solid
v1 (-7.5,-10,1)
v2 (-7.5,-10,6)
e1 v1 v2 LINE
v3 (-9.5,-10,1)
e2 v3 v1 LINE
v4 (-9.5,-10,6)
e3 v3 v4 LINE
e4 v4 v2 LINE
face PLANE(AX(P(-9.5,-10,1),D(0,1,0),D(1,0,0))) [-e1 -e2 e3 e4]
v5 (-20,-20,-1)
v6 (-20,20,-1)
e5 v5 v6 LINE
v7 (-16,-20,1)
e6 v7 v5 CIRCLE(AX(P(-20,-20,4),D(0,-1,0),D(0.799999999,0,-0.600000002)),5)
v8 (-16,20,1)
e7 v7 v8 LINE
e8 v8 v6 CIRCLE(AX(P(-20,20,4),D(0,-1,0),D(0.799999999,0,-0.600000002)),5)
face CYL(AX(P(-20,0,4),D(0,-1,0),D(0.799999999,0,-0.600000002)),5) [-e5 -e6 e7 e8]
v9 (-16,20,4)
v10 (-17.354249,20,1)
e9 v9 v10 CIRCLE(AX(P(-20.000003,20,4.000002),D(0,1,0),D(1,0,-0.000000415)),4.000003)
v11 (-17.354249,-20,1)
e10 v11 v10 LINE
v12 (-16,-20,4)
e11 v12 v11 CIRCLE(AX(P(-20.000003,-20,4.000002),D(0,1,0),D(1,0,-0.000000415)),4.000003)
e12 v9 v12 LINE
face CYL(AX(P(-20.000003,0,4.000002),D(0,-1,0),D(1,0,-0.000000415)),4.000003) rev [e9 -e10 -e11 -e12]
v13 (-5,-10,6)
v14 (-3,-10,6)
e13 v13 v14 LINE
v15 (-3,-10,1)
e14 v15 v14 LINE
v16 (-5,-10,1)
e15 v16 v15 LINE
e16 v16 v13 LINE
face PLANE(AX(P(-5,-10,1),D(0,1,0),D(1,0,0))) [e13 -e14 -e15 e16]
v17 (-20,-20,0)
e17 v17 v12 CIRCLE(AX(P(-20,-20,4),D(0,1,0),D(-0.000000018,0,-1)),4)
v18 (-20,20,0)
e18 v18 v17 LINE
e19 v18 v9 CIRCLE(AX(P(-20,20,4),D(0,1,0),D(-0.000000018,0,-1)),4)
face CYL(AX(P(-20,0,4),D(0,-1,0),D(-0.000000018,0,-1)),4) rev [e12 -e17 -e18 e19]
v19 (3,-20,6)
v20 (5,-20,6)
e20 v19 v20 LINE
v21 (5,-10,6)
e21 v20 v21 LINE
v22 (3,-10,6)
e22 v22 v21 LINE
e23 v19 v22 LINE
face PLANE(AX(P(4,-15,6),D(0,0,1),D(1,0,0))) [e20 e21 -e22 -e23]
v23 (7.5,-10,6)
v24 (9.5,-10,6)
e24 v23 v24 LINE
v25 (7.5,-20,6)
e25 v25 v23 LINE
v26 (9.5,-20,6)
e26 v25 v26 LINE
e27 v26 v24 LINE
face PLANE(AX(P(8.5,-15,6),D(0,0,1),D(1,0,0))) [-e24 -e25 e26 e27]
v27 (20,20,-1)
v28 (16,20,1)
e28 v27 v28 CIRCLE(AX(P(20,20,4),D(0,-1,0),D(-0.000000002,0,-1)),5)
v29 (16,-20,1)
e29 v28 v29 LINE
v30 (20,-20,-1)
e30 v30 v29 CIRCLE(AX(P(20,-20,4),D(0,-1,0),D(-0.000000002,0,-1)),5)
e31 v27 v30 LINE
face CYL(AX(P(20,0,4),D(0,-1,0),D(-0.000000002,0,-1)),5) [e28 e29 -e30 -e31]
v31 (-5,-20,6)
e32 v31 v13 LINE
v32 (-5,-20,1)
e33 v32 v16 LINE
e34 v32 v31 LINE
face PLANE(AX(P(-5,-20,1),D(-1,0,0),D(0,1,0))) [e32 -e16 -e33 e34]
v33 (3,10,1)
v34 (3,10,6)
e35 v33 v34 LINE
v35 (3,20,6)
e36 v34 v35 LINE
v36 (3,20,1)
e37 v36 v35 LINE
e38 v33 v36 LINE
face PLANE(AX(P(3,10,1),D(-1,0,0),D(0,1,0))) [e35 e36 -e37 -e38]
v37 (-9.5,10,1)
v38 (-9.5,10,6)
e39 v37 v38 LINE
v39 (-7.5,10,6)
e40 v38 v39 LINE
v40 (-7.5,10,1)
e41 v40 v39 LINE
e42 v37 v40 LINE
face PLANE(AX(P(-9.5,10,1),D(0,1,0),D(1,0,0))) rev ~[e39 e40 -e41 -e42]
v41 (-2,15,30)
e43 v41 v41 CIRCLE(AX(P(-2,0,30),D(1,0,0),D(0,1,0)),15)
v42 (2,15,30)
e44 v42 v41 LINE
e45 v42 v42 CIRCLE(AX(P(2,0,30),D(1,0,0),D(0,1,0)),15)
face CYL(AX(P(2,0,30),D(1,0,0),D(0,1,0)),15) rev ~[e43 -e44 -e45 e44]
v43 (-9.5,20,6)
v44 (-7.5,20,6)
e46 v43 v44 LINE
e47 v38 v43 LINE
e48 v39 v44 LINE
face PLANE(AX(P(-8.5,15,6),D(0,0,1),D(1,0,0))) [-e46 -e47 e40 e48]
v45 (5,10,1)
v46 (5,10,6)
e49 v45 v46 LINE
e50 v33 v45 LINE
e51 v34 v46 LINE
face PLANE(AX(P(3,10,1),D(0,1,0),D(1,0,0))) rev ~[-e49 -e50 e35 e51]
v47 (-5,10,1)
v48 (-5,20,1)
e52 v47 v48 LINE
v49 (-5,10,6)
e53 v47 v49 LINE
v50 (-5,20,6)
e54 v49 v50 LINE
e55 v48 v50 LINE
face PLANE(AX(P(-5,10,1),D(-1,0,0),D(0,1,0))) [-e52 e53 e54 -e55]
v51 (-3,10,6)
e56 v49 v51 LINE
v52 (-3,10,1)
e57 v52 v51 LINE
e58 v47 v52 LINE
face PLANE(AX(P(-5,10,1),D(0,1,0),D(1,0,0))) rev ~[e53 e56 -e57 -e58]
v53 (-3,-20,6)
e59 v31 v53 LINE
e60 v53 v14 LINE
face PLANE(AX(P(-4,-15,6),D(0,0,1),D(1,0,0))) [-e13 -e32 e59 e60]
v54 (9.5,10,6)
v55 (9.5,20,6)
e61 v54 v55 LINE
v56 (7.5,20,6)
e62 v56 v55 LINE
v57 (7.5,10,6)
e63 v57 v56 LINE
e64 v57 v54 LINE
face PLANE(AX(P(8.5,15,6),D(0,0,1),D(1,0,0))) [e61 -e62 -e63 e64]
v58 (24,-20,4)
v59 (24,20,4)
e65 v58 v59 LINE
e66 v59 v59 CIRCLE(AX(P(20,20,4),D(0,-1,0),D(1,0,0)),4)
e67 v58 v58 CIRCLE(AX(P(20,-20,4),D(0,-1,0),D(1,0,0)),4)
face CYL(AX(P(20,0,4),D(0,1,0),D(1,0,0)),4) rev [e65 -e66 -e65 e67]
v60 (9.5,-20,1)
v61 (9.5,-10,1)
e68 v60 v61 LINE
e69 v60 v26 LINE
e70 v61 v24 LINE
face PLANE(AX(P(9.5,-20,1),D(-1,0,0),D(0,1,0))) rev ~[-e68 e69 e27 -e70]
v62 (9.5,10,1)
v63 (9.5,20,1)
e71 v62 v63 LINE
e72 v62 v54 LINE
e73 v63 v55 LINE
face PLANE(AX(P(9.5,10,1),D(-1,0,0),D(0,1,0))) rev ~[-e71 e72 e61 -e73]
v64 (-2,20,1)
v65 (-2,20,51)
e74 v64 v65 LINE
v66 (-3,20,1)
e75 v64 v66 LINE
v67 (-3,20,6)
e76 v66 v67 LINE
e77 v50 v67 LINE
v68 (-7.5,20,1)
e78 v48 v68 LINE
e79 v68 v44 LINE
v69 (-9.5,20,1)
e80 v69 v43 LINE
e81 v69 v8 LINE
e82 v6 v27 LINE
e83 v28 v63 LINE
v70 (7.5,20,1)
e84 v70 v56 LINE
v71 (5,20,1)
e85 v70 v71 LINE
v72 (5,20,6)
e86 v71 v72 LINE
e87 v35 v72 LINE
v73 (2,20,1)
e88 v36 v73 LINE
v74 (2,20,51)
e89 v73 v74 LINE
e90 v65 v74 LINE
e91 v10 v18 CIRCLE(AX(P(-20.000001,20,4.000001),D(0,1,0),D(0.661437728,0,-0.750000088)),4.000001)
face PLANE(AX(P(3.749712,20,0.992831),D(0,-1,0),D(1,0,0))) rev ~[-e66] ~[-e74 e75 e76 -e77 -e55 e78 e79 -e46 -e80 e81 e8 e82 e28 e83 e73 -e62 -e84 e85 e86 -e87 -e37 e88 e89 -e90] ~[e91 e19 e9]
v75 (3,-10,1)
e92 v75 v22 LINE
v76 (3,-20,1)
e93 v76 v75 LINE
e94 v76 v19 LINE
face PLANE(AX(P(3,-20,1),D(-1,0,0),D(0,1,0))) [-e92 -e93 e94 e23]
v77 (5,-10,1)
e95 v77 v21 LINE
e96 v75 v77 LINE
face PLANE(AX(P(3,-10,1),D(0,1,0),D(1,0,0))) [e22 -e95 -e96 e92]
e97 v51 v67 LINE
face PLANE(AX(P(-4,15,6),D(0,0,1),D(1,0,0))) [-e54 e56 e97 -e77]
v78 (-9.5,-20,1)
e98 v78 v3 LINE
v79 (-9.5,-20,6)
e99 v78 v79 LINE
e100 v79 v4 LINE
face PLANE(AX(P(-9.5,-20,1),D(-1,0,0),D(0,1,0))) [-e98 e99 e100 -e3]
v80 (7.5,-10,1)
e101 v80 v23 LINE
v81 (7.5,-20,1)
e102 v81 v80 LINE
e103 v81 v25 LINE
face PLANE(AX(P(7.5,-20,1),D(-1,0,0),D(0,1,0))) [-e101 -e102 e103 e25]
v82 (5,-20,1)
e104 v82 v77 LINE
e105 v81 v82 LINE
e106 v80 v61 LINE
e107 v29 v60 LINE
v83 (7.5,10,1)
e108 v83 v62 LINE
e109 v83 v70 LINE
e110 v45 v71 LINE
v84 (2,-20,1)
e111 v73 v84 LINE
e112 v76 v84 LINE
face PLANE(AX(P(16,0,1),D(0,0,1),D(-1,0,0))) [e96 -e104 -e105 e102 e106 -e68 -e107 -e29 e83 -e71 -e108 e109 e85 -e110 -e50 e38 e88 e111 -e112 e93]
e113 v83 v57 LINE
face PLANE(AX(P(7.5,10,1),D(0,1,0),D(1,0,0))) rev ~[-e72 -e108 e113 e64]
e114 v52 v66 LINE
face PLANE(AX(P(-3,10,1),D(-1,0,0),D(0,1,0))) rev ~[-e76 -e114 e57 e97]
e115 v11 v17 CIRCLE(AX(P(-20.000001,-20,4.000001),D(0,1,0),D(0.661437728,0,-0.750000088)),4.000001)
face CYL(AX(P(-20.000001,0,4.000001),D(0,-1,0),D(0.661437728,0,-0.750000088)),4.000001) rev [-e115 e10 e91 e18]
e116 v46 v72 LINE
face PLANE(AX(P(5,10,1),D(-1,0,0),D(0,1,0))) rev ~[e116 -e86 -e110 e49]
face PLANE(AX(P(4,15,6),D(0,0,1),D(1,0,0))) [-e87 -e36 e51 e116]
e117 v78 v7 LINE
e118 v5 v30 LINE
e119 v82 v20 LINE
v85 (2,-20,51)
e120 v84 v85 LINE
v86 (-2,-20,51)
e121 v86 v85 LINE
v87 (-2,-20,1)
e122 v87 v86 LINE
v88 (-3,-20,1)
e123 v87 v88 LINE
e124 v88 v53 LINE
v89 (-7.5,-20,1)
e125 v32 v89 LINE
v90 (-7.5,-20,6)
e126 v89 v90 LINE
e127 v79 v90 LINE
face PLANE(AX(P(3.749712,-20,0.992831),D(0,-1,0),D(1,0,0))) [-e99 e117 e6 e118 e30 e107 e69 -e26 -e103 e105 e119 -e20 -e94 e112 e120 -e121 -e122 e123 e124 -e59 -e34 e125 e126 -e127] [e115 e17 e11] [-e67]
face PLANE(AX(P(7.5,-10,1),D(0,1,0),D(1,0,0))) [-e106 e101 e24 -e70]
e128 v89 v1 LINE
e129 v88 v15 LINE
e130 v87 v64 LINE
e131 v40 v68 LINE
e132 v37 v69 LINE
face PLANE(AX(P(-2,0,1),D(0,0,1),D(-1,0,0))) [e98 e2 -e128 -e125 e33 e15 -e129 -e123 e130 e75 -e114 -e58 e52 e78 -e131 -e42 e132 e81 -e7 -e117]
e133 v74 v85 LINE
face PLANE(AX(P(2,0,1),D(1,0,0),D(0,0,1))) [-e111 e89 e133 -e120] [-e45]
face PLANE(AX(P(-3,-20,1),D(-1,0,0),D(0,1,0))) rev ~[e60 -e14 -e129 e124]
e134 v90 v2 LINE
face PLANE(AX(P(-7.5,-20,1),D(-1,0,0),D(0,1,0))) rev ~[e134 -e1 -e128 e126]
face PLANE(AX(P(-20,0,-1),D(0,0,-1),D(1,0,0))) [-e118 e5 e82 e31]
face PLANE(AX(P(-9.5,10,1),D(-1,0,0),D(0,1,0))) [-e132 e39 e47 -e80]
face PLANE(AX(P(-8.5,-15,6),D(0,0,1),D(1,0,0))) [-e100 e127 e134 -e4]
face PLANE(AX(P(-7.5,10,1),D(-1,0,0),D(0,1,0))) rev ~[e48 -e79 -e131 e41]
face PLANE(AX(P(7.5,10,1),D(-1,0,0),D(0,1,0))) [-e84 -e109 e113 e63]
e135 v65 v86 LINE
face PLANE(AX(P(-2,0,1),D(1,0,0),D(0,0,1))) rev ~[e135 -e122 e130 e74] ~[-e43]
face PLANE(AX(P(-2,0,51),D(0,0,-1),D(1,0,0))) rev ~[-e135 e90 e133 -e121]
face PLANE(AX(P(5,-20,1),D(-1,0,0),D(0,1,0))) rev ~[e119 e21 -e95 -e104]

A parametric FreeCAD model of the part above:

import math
import FreeCAD as App
import Part
import Sketcher
from FreeCAD import Vector


def add_polygon(sketch, points):
    """Adds a closed chain of lines whose ends are joined by coincident constraints."""
    first, n = sketch.GeometryCount, len(points)
    for a, b in zip(points, points[1:] + points[:1]):
        sketch.addGeometry(Part.LineSegment(App.Vector(*a, 0), App.Vector(*b, 0)), False)
    for i in range(n):
        sketch.addConstraint(Sketcher.Constraint("Coincident", first + i, 2, first + (i + 1) % n, 1))

doc = App.newDocument("Part")
params = doc.addObject("Spreadsheet::Sheet", "Params")
for row, (alias, value) in enumerate([
    ("sketch1_diameter", "8 mm"),
    ("sketch1_radius", "5 mm"),
    ("sketch1_width", "40 mm"),
    ("sketch1_width2", "14 mm"),
    ("sketch1_height", "50 mm"),
    ("pad1_length", "40 mm"),
    ("sketch2_width", "2 mm"),
    ("sketch2_height", "10 mm"),
    ("pad2_length", "5 mm"),
    ("sketch3_diameter", "30 mm"),
    ("pocket1_length", "25 mm"),
    ("sketch4_width", "2 mm"),
    ("sketch4_height", "10 mm"),
    ("pad3_length", "5 mm"),
], start=1):
    params.set(f"A{row}", alias)
    params.set(f"B{row}", "=" + value)
    params.setAlias(f"B{row}", alias)

body = doc.addObject("PartDesign::Body", "Body")

# Sketch on XZ plane
sketch1 = body.newObject("Sketcher::SketchObject", "Sketch")
sketch1.AttachmentSupport = (doc.getObject("XZ_Plane"), [""])
sketch1.MapMode = "FlatFace"
sketch1.addGeometry([
    Part.LineSegment(Vector(-20, -1, 0), Vector(20, -1, 0)),  # 0
    Part.ArcOfCircle(Part.Circle(Vector(20, 4, 0), Vector(0, 0, 1), 5), math.radians(-90), math.radians(217)),  # 1
    Part.LineSegment(Vector(16, 1, 0), Vector(2, 1, 0)),  # 2
    Part.LineSegment(Vector(2, 1, 0), Vector(2, 51, 0)),  # 3
    Part.LineSegment(Vector(2, 51, 0), Vector(-2, 51, 0)),  # 4
    Part.LineSegment(Vector(-2, 51, 0), Vector(-2, 1, 0)),  # 5
    Part.LineSegment(Vector(-2, 1, 0), Vector(-16, 1, 0)),  # 6
    Part.ArcOfCircle(Part.Circle(Vector(-20, 4, 0), Vector(0, 0, 1), 5), math.radians(-37), math.radians(270)),  # 7
    Part.ArcOfCircle(Part.Circle(Vector(-20, 4, 0), Vector(0, 0, 1), 4), math.radians(-90), math.radians(-49)),  # 8
    Part.ArcOfCircle(Part.Circle(Vector(-20, 4, 0), Vector(0, 0, 1), 4), math.radians(0), math.radians(270)),  # 9
    Part.ArcOfCircle(Part.Circle(Vector(-20, 4, 0), Vector(0, 0, 1), 4), math.radians(-49), math.radians(0)),  # 10
    Part.Circle(Vector(20, 4, 0), Vector(0, 0, 1), 4),  # 11
], False)
sketch1.addConstraint([
    Sketcher.Constraint("Tangent", 0, 2, 1, 1),
    Sketcher.Constraint("Coincident", 1, 2, 2, 1),
    Sketcher.Constraint("Coincident", 2, 2, 3, 1),
    Sketcher.Constraint("Coincident", 3, 2, 4, 1),
    Sketcher.Constraint("Coincident", 4, 2, 5, 1),
    Sketcher.Constraint("Coincident", 5, 2, 6, 1),
    Sketcher.Constraint("Coincident", 6, 2, 7, 1),
    Sketcher.Constraint("Tangent", 7, 2, 0, 1),
    Sketcher.Constraint("Tangent", 8, 1, 9, 2),
    Sketcher.Constraint("Tangent", 9, 1, 10, 2),
    Sketcher.Constraint("Tangent", 10, 1, 8, 2),
    Sketcher.Constraint("Horizontal", 0),
    Sketcher.Constraint("Horizontal", 2),
    Sketcher.Constraint("Vertical", 3),
    Sketcher.Constraint("Horizontal", 4),
    Sketcher.Constraint("Vertical", 5),
    Sketcher.Constraint("Horizontal", 6),
    Sketcher.Constraint("Coincident", 8, 3, 7, 3),
    Sketcher.Constraint("Coincident", 11, 3, 1, 3),
    Sketcher.Constraint("Equal", 1, 7),
    Sketcher.Constraint("Equal", 9, 11),
    Sketcher.Constraint("Symmetric", 2, 2, 5, 2, -2),
    Sketcher.Constraint("PointOnObject", 8, 1, -1),
    Sketcher.Constraint("Horizontal", 11, 3, 9, 1),
    Sketcher.Constraint("Horizontal", 6, 2, 10, 1),
    Sketcher.Constraint("Vertical", 7, 2, 8, 1),
    Sketcher.Constraint("Vertical", 6, 2, 9, 1),
    Sketcher.Constraint("Equal", 2, 6),
    Sketcher.Constraint("Diameter", 11, 8.0),
    Sketcher.Constraint("Radius", 1, 5.0),
    Sketcher.Constraint("DistanceX", 0, 1, 0, 2, 40.0),
    Sketcher.Constraint("DistanceX", 2, 2, 2, 1, 14.0),
    Sketcher.Constraint("DistanceY", 3, 1, 3, 2, 50.0),
])
sketch1.setExpression("Constraints[28]", "Params.sketch1_diameter")
sketch1.setExpression("Constraints[29]", "Params.sketch1_radius")
sketch1.setExpression("Constraints[30]", "Params.sketch1_width")
sketch1.setExpression("Constraints[31]", "Params.sketch1_width2")
sketch1.setExpression("Constraints[32]", "Params.sketch1_height")
pad1 = body.newObject("PartDesign::Pad", "Pad")
pad1.Profile = sketch1
pad1.setExpression("Length", "Params.pad1_length")
pad1.Midplane = True

# Sketch on XY plane
sketch2 = body.newObject("Sketcher::SketchObject", "Sketch001")
sketch2.AttachmentSupport = (doc.getObject("XY_Plane"), [""])
sketch2.MapMode = "FlatFace"
sketch2.AttachmentOffset = App.Placement(Vector(0, 0, 1), App.Rotation())
add_polygon(sketch2, [(7.5, -10), (7.5, -20), (9.5, -20), (9.5, -10)])  # lines 0-3
add_polygon(sketch2, [(3, -10), (3, -20), (5, -20), (5, -10)])  # lines 4-7
add_polygon(sketch2, [(-9.5, -10), (-9.5, -20), (-7.5, -20), (-7.5, -10)])  # lines 8-11
add_polygon(sketch2, [(-5, -10), (-5, -20), (-3, -20), (-3, -10)])  # lines 12-15
add_polygon(sketch2, [(7.5, 20), (7.5, 10), (9.5, 10), (9.5, 20)])  # lines 16-19
add_polygon(sketch2, [(-9.5, 20), (-9.5, 10), (-7.5, 10), (-7.5, 20)])  # lines 20-23
add_polygon(sketch2, [(-5, 20), (-5, 10), (-3, 10), (-3, 20)])  # lines 24-27
add_polygon(sketch2, [(3, 20), (3, 10), (5, 10), (5, 20)])  # lines 28-31
sketch2.addConstraint([
    Sketcher.Constraint("Vertical", 0),
    Sketcher.Constraint("Horizontal", 1),
    Sketcher.Constraint("Vertical", 2),
    Sketcher.Constraint("Horizontal", 3),
    Sketcher.Constraint("Vertical", 4),
    Sketcher.Constraint("Horizontal", 5),
    Sketcher.Constraint("Vertical", 6),
    Sketcher.Constraint("Horizontal", 7),
    Sketcher.Constraint("Vertical", 8),
    Sketcher.Constraint("Horizontal", 9),
    Sketcher.Constraint("Vertical", 10),
    Sketcher.Constraint("Horizontal", 11),
    Sketcher.Constraint("Vertical", 12),
    Sketcher.Constraint("Horizontal", 13),
    Sketcher.Constraint("Vertical", 14),
    Sketcher.Constraint("Horizontal", 15),
    Sketcher.Constraint("Vertical", 16),
    Sketcher.Constraint("Horizontal", 17),
    Sketcher.Constraint("Vertical", 18),
    Sketcher.Constraint("Horizontal", 19),
    Sketcher.Constraint("Vertical", 20),
    Sketcher.Constraint("Horizontal", 21),
    Sketcher.Constraint("Vertical", 22),
    Sketcher.Constraint("Horizontal", 23),
    Sketcher.Constraint("Vertical", 24),
    Sketcher.Constraint("Horizontal", 25),
    Sketcher.Constraint("Vertical", 26),
    Sketcher.Constraint("Horizontal", 27),
    Sketcher.Constraint("Vertical", 28),
    Sketcher.Constraint("Horizontal", 29),
    Sketcher.Constraint("Vertical", 30),
    Sketcher.Constraint("Horizontal", 31),
    Sketcher.Constraint("Symmetric", 10, 2, 16, 2, -1, 1),
    Sketcher.Constraint("Symmetric", 8, 2, 18, 2, -1, 1),
    Sketcher.Constraint("Symmetric", 2, 2, 20, 2, -1, 1),
    Sketcher.Constraint("Symmetric", 0, 2, 22, 2, -1, 1),
    Sketcher.Constraint("Symmetric", 6, 2, 24, 2, -1, 1),
    Sketcher.Constraint("Symmetric", 4, 2, 26, 2, -1, 1),
    Sketcher.Constraint("Symmetric", 14, 2, 28, 2, -1, 1),
    Sketcher.Constraint("Symmetric", 12, 2, 30, 2, -1, 1),
    Sketcher.Constraint("Symmetric", 1, 2, 8, 2, -2),
    Sketcher.Constraint("Symmetric", 3, 2, 10, 2, -2),
    Sketcher.Constraint("Symmetric", 5, 2, 12, 2, -2),
    Sketcher.Constraint("Symmetric", 7, 2, 14, 2, -2),
    Sketcher.Constraint("Horizontal", 1, 2, 4, 2),
    Sketcher.Constraint("Horizontal", 3, 2, 6, 2),
    Sketcher.Constraint("Equal", 3, 5),
    Sketcher.Constraint("DistanceX", 1, 1, 1, 2, 2.0),
    Sketcher.Constraint("DistanceY", 0, 2, 0, 1, 10.0),
    Sketcher.Constraint("DistanceY", 0, 2, -1, 1, 20.0),
    Sketcher.Constraint("DistanceX", -1, 1, 4, 2, 3.0),
    Sketcher.Constraint("DistanceX", 8, 2, 0, 2, 17.0),
])
sketch2.setExpression("Constraints[79]", "Params.sketch2_width")
sketch2.setExpression("Constraints[80]", "Params.sketch2_height")
pad2 = body.newObject("PartDesign::Pad", "Pad001")
pad2.Profile = sketch2
pad2.setExpression("Length", "Params.pad2_length")

# Sketch on YZ plane
sketch3 = body.newObject("Sketcher::SketchObject", "Sketch002")
sketch3.AttachmentSupport = (doc.getObject("YZ_Plane"), [""])
sketch3.MapMode = "FlatFace"
sketch3.AttachmentOffset = App.Placement(Vector(0, 0, 2), App.Rotation())
sketch3.addGeometry(Part.Circle(Vector(0, 30, 0), Vector(0, 0, 1), 15), False)
sketch3.addConstraint([
    Sketcher.Constraint("PointOnObject", 0, 3, -2),
    Sketcher.Constraint("Diameter", 0, 30.0),
    Sketcher.Constraint("DistanceY", -1, 1, 0, 3, 30.0),
])
sketch3.setExpression("Constraints[1]", "Params.sketch3_diameter")
pocket1 = body.newObject("PartDesign::Pocket", "Pocket")
pocket1.Profile = sketch3
pocket1.setExpression("Length", "Params.pocket1_length")

# Sketch on XY plane
sketch4 = body.newObject("Sketcher::SketchObject", "Sketch003")
sketch4.AttachmentSupport = (doc.getObject("XY_Plane"), [""])
sketch4.MapMode = "FlatFace"
sketch4.AttachmentOffset = App.Placement(Vector(0, 0, 1), App.Rotation())
add_polygon(sketch4, [(7.5, -10), (7.5, -20), (9.5, -20), (9.5, -10)])  # lines 0-3
add_polygon(sketch4, [(3, -10), (3, -20), (5, -20), (5, -10)])  # lines 4-7
add_polygon(sketch4, [(-9.5, -10), (-9.5, -20), (-7.5, -20), (-7.5, -10)])  # lines 8-11
add_polygon(sketch4, [(-5, -10), (-5, -20), (-3, -20), (-3, -10)])  # lines 12-15
add_polygon(sketch4, [(7.5, 20), (7.5, 10), (9.5, 10), (9.5, 20)])  # lines 16-19
add_polygon(sketch4, [(-9.5, 20), (-9.5, 10), (-7.5, 10), (-7.5, 20)])  # lines 20-23
add_polygon(sketch4, [(-5, 20), (-5, 10), (-3, 10), (-3, 20)])  # lines 24-27
add_polygon(sketch4, [(3, 20), (3, 10), (5, 10), (5, 20)])  # lines 28-31
sketch4.addConstraint([
    Sketcher.Constraint("Vertical", 0),
    Sketcher.Constraint("Horizontal", 1),
    Sketcher.Constraint("Vertical", 2),
    Sketcher.Constraint("Horizontal", 3),
    Sketcher.Constraint("Vertical", 4),
    Sketcher.Constraint("Horizontal", 5),
    Sketcher.Constraint("Vertical", 6),
    Sketcher.Constraint("Horizontal", 7),
    Sketcher.Constraint("Vertical", 8),
    Sketcher.Constraint("Horizontal", 9),
    Sketcher.Constraint("Vertical", 10),
    Sketcher.Constraint("Horizontal", 11),
    Sketcher.Constraint("Vertical", 12),
    Sketcher.Constraint("Horizontal", 13),
    Sketcher.Constraint("Vertical", 14),
    Sketcher.Constraint("Horizontal", 15),
    Sketcher.Constraint("Vertical", 16),
    Sketcher.Constraint("Horizontal", 17),
    Sketcher.Constraint("Vertical", 18),
    Sketcher.Constraint("Horizontal", 19),
    Sketcher.Constraint("Vertical", 20),
    Sketcher.Constraint("Horizontal", 21),
    Sketcher.Constraint("Vertical", 22),
    Sketcher.Constraint("Horizontal", 23),
    Sketcher.Constraint("Vertical", 24),
    Sketcher.Constraint("Horizontal", 25),
    Sketcher.Constraint("Vertical", 26),
    Sketcher.Constraint("Horizontal", 27),
    Sketcher.Constraint("Vertical", 28),
    Sketcher.Constraint("Horizontal", 29),
    Sketcher.Constraint("Vertical", 30),
    Sketcher.Constraint("Horizontal", 31),
    Sketcher.Constraint("Symmetric", 10, 2, 16, 2, -1, 1),
    Sketcher.Constraint("Symmetric", 8, 2, 18, 2, -1, 1),
    Sketcher.Constraint("Symmetric", 2, 2, 20, 2, -1, 1),
    Sketcher.Constraint("Symmetric", 0, 2, 22, 2, -1, 1),
    Sketcher.Constraint("Symmetric", 6, 2, 24, 2, -1, 1),
    Sketcher.Constraint("Symmetric", 4, 2, 26, 2, -1, 1),
    Sketcher.Constraint("Symmetric", 14, 2, 28, 2, -1, 1),
    Sketcher.Constraint("Symmetric", 12, 2, 30, 2, -1, 1),
    Sketcher.Constraint("Symmetric", 1, 2, 8, 2, -2),
    Sketcher.Constraint("Symmetric", 3, 2, 10, 2, -2),
    Sketcher.Constraint("Symmetric", 5, 2, 12, 2, -2),
    Sketcher.Constraint("Symmetric", 7, 2, 14, 2, -2),
    Sketcher.Constraint("Horizontal", 1, 2, 4, 2),
    Sketcher.Constraint("Horizontal", 3, 2, 6, 2),
    Sketcher.Constraint("Equal", 3, 5),
    Sketcher.Constraint("DistanceX", 1, 1, 1, 2, 2.0),
    Sketcher.Constraint("DistanceY", 0, 2, 0, 1, 10.0),
    Sketcher.Constraint("DistanceY", 0, 2, -1, 1, 20.0),
    Sketcher.Constraint("DistanceX", -1, 1, 4, 2, 3.0),
    Sketcher.Constraint("DistanceX", 8, 2, 0, 2, 17.0),
])
sketch4.setExpression("Constraints[79]", "Params.sketch4_width")
sketch4.setExpression("Constraints[80]", "Params.sketch4_height")
pad3 = body.newObject("PartDesign::Pad", "Pad002")
pad3.Profile = sketch4
pad3.setExpression("Length", "Params.pad3_length")

doc.recompute()
